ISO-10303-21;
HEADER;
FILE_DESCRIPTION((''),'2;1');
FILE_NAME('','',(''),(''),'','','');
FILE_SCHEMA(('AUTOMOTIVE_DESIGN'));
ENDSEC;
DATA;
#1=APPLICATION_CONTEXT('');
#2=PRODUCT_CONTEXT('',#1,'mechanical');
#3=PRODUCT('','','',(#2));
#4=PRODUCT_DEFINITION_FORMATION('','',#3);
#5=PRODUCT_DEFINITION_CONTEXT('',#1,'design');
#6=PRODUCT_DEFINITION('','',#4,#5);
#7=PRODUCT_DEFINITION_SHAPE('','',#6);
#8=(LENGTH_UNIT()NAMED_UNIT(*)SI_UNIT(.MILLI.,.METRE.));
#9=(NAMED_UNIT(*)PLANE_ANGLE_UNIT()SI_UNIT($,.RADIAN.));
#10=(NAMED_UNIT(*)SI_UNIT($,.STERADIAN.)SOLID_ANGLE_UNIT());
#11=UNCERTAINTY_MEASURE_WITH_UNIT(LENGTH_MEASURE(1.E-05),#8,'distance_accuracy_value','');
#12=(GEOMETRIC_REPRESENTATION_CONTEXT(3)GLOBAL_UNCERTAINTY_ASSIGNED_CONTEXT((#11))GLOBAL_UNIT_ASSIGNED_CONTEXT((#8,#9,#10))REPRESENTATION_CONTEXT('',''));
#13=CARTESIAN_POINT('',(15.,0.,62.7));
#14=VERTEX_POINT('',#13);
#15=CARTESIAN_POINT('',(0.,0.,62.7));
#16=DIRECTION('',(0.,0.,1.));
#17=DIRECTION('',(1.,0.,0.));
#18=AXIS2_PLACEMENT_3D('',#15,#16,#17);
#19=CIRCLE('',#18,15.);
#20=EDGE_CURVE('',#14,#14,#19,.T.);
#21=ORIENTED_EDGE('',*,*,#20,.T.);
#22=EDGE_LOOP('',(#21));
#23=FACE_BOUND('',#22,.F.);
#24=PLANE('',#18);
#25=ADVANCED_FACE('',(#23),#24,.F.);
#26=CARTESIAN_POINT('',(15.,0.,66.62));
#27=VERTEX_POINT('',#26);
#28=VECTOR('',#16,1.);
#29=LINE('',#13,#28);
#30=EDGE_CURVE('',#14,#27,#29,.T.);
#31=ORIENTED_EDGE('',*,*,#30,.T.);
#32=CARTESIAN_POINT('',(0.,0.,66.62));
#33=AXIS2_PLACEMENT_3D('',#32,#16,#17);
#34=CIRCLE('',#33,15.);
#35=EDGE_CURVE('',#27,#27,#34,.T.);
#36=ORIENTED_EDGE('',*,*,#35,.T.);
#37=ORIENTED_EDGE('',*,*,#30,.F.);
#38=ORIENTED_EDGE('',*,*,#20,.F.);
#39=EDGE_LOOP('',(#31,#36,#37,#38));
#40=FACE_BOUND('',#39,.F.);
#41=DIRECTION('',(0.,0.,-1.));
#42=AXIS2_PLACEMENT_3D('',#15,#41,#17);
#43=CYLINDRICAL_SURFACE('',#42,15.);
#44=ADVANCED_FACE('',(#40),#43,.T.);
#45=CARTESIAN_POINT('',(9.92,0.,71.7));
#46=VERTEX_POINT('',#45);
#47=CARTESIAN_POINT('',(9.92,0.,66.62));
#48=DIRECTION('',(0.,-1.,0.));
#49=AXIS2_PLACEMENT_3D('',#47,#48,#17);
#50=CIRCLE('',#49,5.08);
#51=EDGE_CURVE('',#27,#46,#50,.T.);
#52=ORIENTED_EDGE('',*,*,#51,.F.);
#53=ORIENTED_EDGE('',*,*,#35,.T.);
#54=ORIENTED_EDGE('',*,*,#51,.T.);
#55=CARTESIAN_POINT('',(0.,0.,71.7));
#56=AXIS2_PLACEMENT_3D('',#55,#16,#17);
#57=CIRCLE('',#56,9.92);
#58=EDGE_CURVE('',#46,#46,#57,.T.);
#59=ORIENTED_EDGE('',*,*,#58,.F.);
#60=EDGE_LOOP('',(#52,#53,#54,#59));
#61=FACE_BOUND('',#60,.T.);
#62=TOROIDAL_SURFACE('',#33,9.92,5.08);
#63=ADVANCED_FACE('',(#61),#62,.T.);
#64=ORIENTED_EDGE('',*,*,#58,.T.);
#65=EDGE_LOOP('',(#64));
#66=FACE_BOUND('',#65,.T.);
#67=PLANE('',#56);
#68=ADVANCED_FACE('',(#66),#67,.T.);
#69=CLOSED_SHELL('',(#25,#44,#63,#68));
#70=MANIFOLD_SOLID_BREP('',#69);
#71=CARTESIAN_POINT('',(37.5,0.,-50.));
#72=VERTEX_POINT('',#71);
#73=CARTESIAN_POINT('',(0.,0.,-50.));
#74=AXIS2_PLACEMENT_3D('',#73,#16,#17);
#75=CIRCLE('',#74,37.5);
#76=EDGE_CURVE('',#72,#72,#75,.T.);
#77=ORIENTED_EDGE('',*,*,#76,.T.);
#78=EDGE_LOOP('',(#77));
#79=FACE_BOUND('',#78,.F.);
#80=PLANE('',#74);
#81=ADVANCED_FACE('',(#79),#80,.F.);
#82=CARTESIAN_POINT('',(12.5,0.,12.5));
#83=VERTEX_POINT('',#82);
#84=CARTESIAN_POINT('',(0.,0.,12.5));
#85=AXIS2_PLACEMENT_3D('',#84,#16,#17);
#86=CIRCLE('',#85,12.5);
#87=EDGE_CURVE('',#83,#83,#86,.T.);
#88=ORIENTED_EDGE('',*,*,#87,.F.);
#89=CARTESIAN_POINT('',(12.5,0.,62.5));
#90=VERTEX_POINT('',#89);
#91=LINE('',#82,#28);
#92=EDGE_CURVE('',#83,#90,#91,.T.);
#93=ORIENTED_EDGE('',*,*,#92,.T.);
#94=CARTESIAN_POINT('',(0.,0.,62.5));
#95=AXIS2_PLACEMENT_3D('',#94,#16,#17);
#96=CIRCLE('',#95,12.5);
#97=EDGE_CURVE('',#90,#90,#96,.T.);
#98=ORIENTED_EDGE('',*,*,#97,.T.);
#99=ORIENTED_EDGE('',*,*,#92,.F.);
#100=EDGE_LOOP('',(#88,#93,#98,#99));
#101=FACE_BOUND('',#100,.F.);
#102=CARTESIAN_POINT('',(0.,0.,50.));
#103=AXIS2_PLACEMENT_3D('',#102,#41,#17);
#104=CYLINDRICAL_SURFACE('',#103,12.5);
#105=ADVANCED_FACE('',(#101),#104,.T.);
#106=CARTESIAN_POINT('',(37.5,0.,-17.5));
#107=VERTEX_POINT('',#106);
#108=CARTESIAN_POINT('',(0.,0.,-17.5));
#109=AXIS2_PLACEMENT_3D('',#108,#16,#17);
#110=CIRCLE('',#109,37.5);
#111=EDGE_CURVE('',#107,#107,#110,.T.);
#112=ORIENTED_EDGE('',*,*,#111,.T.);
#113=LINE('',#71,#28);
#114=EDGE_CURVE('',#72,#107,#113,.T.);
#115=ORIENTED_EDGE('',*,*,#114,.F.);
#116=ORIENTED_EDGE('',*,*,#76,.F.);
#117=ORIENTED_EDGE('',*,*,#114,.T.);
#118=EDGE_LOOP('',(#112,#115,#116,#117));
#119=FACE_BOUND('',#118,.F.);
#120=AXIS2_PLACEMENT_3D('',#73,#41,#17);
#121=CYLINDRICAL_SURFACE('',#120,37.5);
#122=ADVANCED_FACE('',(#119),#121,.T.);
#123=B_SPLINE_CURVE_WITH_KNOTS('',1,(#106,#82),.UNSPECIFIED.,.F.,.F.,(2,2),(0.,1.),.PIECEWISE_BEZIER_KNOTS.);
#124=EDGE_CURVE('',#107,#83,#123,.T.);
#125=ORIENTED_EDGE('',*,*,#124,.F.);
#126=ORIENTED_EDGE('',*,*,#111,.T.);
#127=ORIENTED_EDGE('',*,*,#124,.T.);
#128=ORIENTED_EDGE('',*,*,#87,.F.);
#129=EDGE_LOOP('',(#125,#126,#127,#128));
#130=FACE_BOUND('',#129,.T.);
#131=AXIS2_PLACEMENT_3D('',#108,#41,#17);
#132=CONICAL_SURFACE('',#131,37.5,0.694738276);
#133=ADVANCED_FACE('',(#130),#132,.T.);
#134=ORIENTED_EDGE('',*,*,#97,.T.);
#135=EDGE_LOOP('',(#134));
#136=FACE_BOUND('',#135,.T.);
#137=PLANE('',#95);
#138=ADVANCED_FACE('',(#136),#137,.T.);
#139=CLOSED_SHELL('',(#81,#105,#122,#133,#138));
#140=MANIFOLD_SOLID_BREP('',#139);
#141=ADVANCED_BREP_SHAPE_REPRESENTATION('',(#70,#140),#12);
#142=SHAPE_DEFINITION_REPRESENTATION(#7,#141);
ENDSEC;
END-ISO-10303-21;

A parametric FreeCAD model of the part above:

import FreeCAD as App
import Part
import Sketcher
from FreeCAD import Vector


def edges_at(feature, points):
    """Names of the edges that pass closest to the given points."""
    edges = feature.Shape.Edges
    near = lambda p: min(range(len(edges)), key=lambda i: edges[i].distToShape(Part.Vertex(*p))[0])
    return sorted({f"Edge{near(p) + 1}" for p in points})

doc = App.newDocument("Part")
params = doc.addObject("Spreadsheet::Sheet", "Params")
for row, (alias, value) in enumerate([
    ("sketch1_diameter", "30 mm"),
    ("pad1_length", "9 mm"),
    ("fillet_radius", "5.08 mm"),
    ("sketch2_diameter", "75 mm"),
    ("pad2_length", "32.5 mm"),
    ("sketch3_diameter", "75 mm"),
    ("sketch4_diameter", "25 mm"),
    ("sketch5_diameter", "25 mm"),
    ("pad3_length", "37.5 mm"),
    ("sketch6_diameter", "25 mm"),
    ("pad4_length", "12.5 mm"),
], start=1):
    params.set(f"A{row}", alias)
    params.set(f"B{row}", "=" + value)
    params.setAlias(f"B{row}", alias)

body = doc.addObject("PartDesign::Body", "Body")

sketch1 = doc.addObject("Sketcher::SketchObject", "Sketch")
body.addObject(sketch1)
sketch1.AttachmentSupport = (doc.XY_Plane, [""])
sketch1.MapMode = "FlatFace"
sketch1.AttachmentOffset = App.Placement(Vector(0, 0, 62.7), App.Rotation())
sketch1.addGeometry(Part.Circle(Vector(0, 0, 0), Vector(0, 0, 1), 15), False)
sketch1.addConstraint([
    Sketcher.Constraint("Coincident", 0, 3, -1, 1),
    Sketcher.Constraint("Diameter", 0, 30.0),
])
sketch1.setExpression("Constraints[1]", "Params.sketch1_diameter")
pad1 = doc.addObject("PartDesign::Pad", "Pad")
body.addObject(pad1)
pad1.Profile = sketch1
pad1.setExpression("Length", "Params.pad1_length")
doc.recompute()

fillet = doc.addObject("PartDesign::Fillet", "Fillet")
body.addObject(fillet)
fillet.Base = (pad1, edges_at(pad1, [(-15, 0, 71.7)]))
fillet.setExpression("Radius", "Params.fillet_radius")
body2 = doc.addObject("PartDesign::Body", "Body001")

sketch2 = doc.addObject("Sketcher::SketchObject", "Sketch001")
body2.addObject(sketch2)
sketch2.AttachmentSupport = (doc.getObject("XY_Plane001"), [""])
sketch2.MapMode = "FlatFace"
sketch2.AttachmentOffset = App.Placement(Vector(0, 0, -50), App.Rotation())
sketch2.addGeometry(Part.Circle(Vector(0, 0, 0), Vector(0, 0, 1), 38), False)
sketch2.addConstraint([
    Sketcher.Constraint("Coincident", 0, 3, -1, 1),
    Sketcher.Constraint("Diameter", 0, 75.0),
])
sketch2.setExpression("Constraints[1]", "Params.sketch2_diameter")
pad2 = doc.addObject("PartDesign::Pad", "Pad001")
body2.addObject(pad2)
pad2.Profile = sketch2
pad2.setExpression("Length", "Params.pad2_length")

sketch3 = doc.addObject("Sketcher::SketchObject", "Sketch002")
body2.addObject(sketch3)
sketch3.AttachmentSupport = (doc.getObject("XY_Plane001"), [""])
sketch3.MapMode = "FlatFace"
sketch3.AttachmentOffset = App.Placement(Vector(0, 0, -17.5), App.Rotation())
sketch3.addGeometry(Part.Circle(Vector(0, 0, 0), Vector(0, 0, 1), 38), False)
sketch3.addConstraint([
    Sketcher.Constraint("Coincident", 0, 3, -1, 1),
    Sketcher.Constraint("Diameter", 0, 75.0),
])
sketch3.setExpression("Constraints[1]", "Params.sketch3_diameter")

sketch4 = doc.addObject("Sketcher::SketchObject", "Sketch003")
body2.addObject(sketch4)
sketch4.AttachmentSupport = (doc.getObject("XY_Plane001"), [""])
sketch4.MapMode = "FlatFace"
sketch4.AttachmentOffset = App.Placement(Vector(0, 0, 12.5), App.Rotation())
sketch4.addGeometry(Part.Circle(Vector(0, 0, 0), Vector(0, 0, 1), 12), False)
sketch4.addConstraint([
    Sketcher.Constraint("Coincident", 0, 3, -1, 1),
    Sketcher.Constraint("Diameter", 0, 25.0),
])
sketch4.setExpression("Constraints[1]", "Params.sketch4_diameter")

additiveloft = doc.addObject("PartDesign::AdditiveLoft", "AdditiveLoft")
body2.addObject(additiveloft)
additiveloft.Profile = sketch3
additiveloft.Sections = [sketch4]

sketch5 = doc.addObject("Sketcher::SketchObject", "Sketch004")
body2.addObject(sketch5)
sketch5.AttachmentSupport = (doc.getObject("XY_Plane001"), [""])
sketch5.MapMode = "FlatFace"
sketch5.AttachmentOffset = App.Placement(Vector(0, 0, 12.5), App.Rotation())
sketch5.addGeometry(Part.Circle(Vector(0, 0, 0), Vector(0, 0, 1), 12), False)
sketch5.addConstraint([
    Sketcher.Constraint("Coincident", 0, 3, -1, 1),
    Sketcher.Constraint("Diameter", 0, 25.0),
])
sketch5.setExpression("Constraints[1]", "Params.sketch5_diameter")
pad3 = doc.addObject("PartDesign::Pad", "Pad002")
body2.addObject(pad3)
pad3.Profile = sketch5
pad3.setExpression("Length", "Params.pad3_length")

sketch6 = doc.addObject("Sketcher::SketchObject", "Sketch005")
body2.addObject(sketch6)
sketch6.AttachmentSupport = (doc.getObject("XY_Plane001"), [""])
sketch6.MapMode = "FlatFace"
sketch6.AttachmentOffset = App.Placement(Vector(0, 0, 50), App.Rotation())
sketch6.addGeometry(Part.Circle(Vector(0, 0, 0), Vector(0, 0, 1), 12), False)
sketch6.addConstraint([
    Sketcher.Constraint("Coincident", 0, 3, -1, 1),
    Sketcher.Constraint("Diameter", 0, 25.0),
])
sketch6.setExpression("Constraints[1]", "Params.sketch6_diameter")
pad4 = doc.addObject("PartDesign::Pad", "Pad003")
body2.addObject(pad4)
pad4.Profile = sketch6
pad4.setExpression("Length", "Params.pad4_length")

doc.recompute()
